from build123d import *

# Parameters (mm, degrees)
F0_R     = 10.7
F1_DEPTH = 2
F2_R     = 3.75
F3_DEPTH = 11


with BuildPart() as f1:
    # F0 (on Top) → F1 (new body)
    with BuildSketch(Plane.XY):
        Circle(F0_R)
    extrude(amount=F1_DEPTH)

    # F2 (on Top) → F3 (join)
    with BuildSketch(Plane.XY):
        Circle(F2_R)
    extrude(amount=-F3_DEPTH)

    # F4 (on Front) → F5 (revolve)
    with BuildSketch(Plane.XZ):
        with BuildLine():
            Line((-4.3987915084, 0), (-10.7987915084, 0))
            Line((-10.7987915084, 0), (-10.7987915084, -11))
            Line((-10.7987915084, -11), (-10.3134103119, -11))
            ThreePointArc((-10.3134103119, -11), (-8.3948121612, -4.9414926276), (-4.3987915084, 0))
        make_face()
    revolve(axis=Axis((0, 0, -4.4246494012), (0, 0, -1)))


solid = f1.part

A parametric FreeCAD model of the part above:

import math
import FreeCAD as App
import Part
import Sketcher
from FreeCAD import Vector

doc = App.newDocument("Part")
body = doc.addObject("PartDesign::Body", "Body")

sketch1 = doc.addObject("Sketcher::SketchObject", "Sketch")
body.addObject(sketch1)
sketch1.AttachmentSupport = (doc.XY_Plane, [""])
sketch1.MapMode = "FlatFace"
sketch1.addGeometry(Part.Circle(Vector(0, 0, 0), Vector(0, 0, 1), 11), False)
sketch1.addConstraint(Sketcher.Constraint("Coincident", 0, 3, -1, 1))
sketch1.addConstraint(Sketcher.Constraint("Diameter", 0, 21.4))
pad1 = doc.addObject("PartDesign::Pad", "Pad")
body.addObject(pad1)
pad1.Profile = sketch1
pad1.Length = 2

sketch2 = doc.addObject("Sketcher::SketchObject", "Sketch001")
body.addObject(sketch2)
sketch2.AttachmentSupport = (doc.XY_Plane, [""])
sketch2.MapMode = "FlatFace"
sketch2.addGeometry(Part.Circle(Vector(0, 0, 0), Vector(0, 0, 1), 3.8), False)
sketch2.addConstraint(Sketcher.Constraint("Coincident", 0, 3, -1, 1))
sketch2.addConstraint(Sketcher.Constraint("Diameter", 0, 7.5))
pad2 = doc.addObject("PartDesign::Pad", "Pad001")
body.addObject(pad2)
pad2.Profile = sketch2
pad2.Length = 11
pad2.Reversed = True

sketch3 = doc.addObject("Sketcher::SketchObject", "Sketch002")
body.addObject(sketch3)
sketch3.AttachmentSupport = (doc.XZ_Plane, [""])
sketch3.MapMode = "FlatFace"
sketch3.addGeometry(Part.LineSegment(Vector(-4.4, 0, 0), Vector(-10.8, 0, 0)), False)
sketch3.addGeometry(Part.LineSegment(Vector(-10.8, 0, 0), Vector(-10.8, -11, 0)), False)
sketch3.addGeometry(Part.LineSegment(Vector(-10.8, -11, 0), Vector(-10.31, -11, 0)), False)
sketch3.addGeometry(Part.ArcOfCircle(Part.Circle(Vector(6.69, -13.05, 0), Vector(0, 0, 1), 17.12), math.radians(130), math.radians(173)), False)
sketch3.addConstraint(Sketcher.Constraint("Coincident", 0, 2, 1, 1))
sketch3.addConstraint(Sketcher.Constraint("Coincident", 1, 2, 2, 1))
sketch3.addConstraint(Sketcher.Constraint("Coincident", 2, 2, 3, 2))
sketch3.addConstraint(Sketcher.Constraint("Coincident", 3, 1, 0, 1))
sketch3.addConstraint(Sketcher.Constraint("Horizontal", 0))
sketch3.addConstraint(Sketcher.Constraint("Vertical", 1))
sketch3.addConstraint(Sketcher.Constraint("Horizontal", 2))
sketch3.addConstraint(Sketcher.Constraint("PointOnObject", 0, 2, -1))
sketch3.addConstraint(Sketcher.Constraint("DistanceY", 1, 2, 1, 1, 11.0))
sketch3.addConstraint(Sketcher.Constraint("DistanceX", 0, 2, 0, 1, 6.4))
sketch3.addConstraint(Sketcher.Constraint("Radius", 3, 17.12246))
sketch3.addConstraint(Sketcher.Constraint("DistanceX", 2, 1, 2, 2, 0.485381))
sketch3.addConstraint(Sketcher.Constraint("DistanceX", 0, 2, -1, 1, 10.798792))
revolution = doc.addObject("PartDesign::Revolution", "Revolution")
body.addObject(revolution)
revolution.Profile = sketch3
revolution.ReferenceAxis = (sketch3, ["V_Axis"])
revolution.Angle = 360

doc.recompute()
